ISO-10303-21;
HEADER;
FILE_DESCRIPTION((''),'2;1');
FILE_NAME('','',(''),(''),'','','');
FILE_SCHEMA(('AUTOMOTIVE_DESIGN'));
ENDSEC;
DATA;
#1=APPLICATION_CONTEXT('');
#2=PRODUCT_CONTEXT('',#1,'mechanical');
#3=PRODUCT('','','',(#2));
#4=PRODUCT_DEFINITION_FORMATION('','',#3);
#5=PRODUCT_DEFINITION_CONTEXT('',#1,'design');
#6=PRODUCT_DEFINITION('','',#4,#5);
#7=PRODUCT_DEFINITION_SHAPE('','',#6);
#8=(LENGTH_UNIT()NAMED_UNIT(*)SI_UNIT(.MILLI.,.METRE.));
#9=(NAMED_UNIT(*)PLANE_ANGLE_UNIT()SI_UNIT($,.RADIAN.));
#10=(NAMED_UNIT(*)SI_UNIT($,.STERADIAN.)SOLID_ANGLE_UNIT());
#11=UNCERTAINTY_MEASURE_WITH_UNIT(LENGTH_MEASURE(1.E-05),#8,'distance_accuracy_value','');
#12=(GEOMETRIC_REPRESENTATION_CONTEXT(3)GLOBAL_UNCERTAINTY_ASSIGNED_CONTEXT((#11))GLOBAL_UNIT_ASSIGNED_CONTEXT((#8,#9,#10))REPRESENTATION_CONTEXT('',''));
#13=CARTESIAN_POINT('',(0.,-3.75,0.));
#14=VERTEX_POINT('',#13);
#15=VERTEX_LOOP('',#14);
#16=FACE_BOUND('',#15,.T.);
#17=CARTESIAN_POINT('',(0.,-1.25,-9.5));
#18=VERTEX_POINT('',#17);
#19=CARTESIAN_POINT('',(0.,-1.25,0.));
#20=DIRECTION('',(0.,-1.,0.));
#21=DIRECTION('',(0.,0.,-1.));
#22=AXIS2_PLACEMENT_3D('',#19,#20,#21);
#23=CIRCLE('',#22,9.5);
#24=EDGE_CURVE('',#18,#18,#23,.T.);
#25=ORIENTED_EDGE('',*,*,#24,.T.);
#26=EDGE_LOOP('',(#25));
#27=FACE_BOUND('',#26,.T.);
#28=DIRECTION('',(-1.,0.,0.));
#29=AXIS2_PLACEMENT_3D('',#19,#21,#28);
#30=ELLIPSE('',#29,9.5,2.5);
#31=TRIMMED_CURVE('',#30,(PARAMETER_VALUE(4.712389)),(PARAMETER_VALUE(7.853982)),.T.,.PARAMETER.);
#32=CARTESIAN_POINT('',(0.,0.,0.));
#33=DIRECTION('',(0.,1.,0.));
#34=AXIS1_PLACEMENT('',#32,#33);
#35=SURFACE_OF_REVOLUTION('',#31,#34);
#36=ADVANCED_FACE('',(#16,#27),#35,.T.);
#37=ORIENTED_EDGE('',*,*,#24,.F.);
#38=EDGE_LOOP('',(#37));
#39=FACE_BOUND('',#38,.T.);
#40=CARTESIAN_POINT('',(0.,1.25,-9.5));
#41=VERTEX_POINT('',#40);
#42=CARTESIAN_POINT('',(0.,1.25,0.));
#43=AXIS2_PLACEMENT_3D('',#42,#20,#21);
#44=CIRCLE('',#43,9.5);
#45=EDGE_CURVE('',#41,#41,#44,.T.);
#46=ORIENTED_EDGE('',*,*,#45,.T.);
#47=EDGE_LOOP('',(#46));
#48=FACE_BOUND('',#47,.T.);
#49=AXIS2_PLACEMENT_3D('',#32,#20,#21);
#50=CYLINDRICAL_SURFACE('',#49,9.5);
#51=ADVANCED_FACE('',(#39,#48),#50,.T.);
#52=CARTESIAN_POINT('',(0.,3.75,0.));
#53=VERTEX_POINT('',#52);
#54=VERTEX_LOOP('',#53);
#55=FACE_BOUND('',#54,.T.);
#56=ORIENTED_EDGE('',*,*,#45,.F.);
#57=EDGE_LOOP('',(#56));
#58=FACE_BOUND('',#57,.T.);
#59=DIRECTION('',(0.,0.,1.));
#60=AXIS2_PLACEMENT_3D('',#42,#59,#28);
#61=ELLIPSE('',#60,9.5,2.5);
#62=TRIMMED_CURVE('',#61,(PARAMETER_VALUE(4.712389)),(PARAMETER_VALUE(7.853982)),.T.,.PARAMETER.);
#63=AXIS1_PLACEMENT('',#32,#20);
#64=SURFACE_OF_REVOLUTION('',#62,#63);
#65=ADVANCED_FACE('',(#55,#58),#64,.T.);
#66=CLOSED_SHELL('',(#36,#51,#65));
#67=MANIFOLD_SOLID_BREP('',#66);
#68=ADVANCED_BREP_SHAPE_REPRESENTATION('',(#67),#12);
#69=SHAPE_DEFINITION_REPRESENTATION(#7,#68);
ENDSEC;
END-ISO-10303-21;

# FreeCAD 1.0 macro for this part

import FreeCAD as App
import Part
import Sketcher

doc = App.newDocument("Part")
body = doc.addObject("PartDesign::Body", "Body")

# Sketch on XY plane
sketch1 = body.newObject("Sketcher::SketchObject", "Sketch")
sketch1.AttachmentSupport = (doc.getObject("XY_Plane"), [""])
sketch1.MapMode = "FlatFace"
sketch1.addGeometry([
    Part.LineSegment(App.Vector(-9.5, 1.25, 0), App.Vector(-9.5, 0, 0)),
    Part.LineSegment(App.Vector(-9.5, 0, 0), App.Vector(0, 0, 0)),
    Part.LineSegment(App.Vector(0, 0, 0), App.Vector(0, 3.75, 0)),
    Part.BSplineCurve([App.Vector(0, 3.75, 0), App.Vector(-9.5, 3.75, 0), App.Vector(-9.5, 1.25, 0)], [3, 3], [4.71238898, 6.283185307], False, 2, [1, 0.707106781, 1], False),
], False)
sketch1.addConstraint([
    Sketcher.Constraint("Block", 3),
    Sketcher.Constraint("Coincident", 0, 2, 1, 1),
    Sketcher.Constraint("Coincident", 1, 2, 2, 1),
    Sketcher.Constraint("Coincident", 2, 2, 3, 1),
    Sketcher.Constraint("Coincident", 3, 2, 0, 1),
    Sketcher.Constraint("Vertical", 0),
    Sketcher.Constraint("Horizontal", 1),
    Sketcher.Constraint("Vertical", 2),
    Sketcher.Constraint("PointOnObject", 0, 2, -1),
])
revolution = body.newObject("PartDesign::Revolution", "Revolution")
revolution.Profile = sketch1
revolution.ReferenceAxis = (sketch1, ["V_Axis"])
revolution.Angle = 360
doc.recompute()

mirrored = body.newObject("PartDesign::Mirrored", "Mirrored")
mirrored.Originals = [revolution]
mirrored.MirrorPlane = (doc.getObject("XZ_Plane"), [""])
body.Tip = mirrored

doc.recompute()
